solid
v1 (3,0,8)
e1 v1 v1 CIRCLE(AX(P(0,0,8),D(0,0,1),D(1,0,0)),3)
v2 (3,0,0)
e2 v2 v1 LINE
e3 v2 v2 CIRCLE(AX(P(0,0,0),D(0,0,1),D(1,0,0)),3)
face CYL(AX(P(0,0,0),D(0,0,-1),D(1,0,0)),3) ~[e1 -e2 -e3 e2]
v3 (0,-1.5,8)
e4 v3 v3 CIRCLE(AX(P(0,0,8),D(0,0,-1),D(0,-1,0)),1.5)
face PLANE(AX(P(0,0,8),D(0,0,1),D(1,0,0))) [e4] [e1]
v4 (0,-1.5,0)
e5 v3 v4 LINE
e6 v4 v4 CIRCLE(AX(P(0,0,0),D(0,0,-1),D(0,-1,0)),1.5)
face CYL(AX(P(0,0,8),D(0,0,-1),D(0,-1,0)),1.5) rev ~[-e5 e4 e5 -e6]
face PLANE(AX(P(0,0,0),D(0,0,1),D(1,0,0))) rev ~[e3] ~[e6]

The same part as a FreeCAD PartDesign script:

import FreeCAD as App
import Part
import Sketcher
from FreeCAD import Vector

doc = App.newDocument("Part")
params = doc.addObject("Spreadsheet::Sheet", "Params")
for row, (alias, value) in enumerate([
    ("sketch1_diameter", "6 mm"),
    ("pad1_length", "8 mm"),
    ("sketch2_diameter", "3 mm"),
    ("hole_diameter", "3 mm"),
], start=1):
    params.set(f"A{row}", alias)
    params.set(f"B{row}", "=" + value)
    params.setAlias(f"B{row}", alias)

body = doc.addObject("PartDesign::Body", "Body")

sketch1 = body.newObject("Sketcher::SketchObject", "Sketch")
sketch1.AttachmentSupport = (doc.getObject("XY_Plane"), [""])
sketch1.MapMode = "FlatFace"
sketch1.addGeometry(Part.Circle(Vector(0, 0, 0), Vector(0, 0, 1), 3), False)
sketch1.addConstraint([
    Sketcher.Constraint("Coincident", 0, 3, -1, 1),
    Sketcher.Constraint("Diameter", 0, 6.0),
])
sketch1.setExpression("Constraints[1]", "Params.sketch1_diameter")
pad1 = body.newObject("PartDesign::Pad", "Pad")
pad1.Profile = sketch1
pad1.setExpression("Length", "Params.pad1_length")

sketch2 = body.newObject("Sketcher::SketchObject", "Sketch001")
sketch2.AttachmentSupport = (doc.getObject("XY_Plane"), [""])
sketch2.MapMode = "FlatFace"
sketch2.AttachmentOffset = App.Placement(Vector(0, 0, 8), App.Rotation())
sketch2.addGeometry(Part.Circle(Vector(0, 0, 0), Vector(0, 0, 1), 1.5), False)
sketch2.addConstraint([
    Sketcher.Constraint("Coincident", 0, 3, -1, 1),
    Sketcher.Constraint("Diameter", 0, 3.0),
])
sketch2.setExpression("Constraints[1]", "Params.sketch2_diameter")
doc.recompute()
hole = body.newObject("PartDesign::Hole", "Hole")
hole.Profile = sketch2
hole.ThreadType = "None"
hole.setExpression("Diameter", "Params.hole_diameter")
hole.DepthType = "ThroughAll"

doc.recompute()
